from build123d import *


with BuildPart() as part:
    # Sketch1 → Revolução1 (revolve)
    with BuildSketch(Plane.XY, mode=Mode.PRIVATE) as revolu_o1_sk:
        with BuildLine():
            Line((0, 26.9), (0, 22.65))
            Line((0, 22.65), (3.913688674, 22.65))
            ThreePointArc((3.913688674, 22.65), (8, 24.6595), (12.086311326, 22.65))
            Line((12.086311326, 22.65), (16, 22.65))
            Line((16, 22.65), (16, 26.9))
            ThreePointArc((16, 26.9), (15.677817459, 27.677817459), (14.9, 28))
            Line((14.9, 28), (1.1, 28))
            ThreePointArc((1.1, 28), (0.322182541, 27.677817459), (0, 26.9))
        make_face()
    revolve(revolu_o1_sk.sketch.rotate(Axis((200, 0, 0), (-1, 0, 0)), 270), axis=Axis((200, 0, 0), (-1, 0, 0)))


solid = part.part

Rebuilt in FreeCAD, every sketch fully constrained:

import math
import FreeCAD as App
import Part
import Sketcher

V = App.Vector
Q = App.Units.Quantity

doc = App.newDocument("Part")
body = doc.addObject("PartDesign::Body", "Body")

# Sketch on XY plane
sketch1 = body.newObject("Sketcher::SketchObject", "Sketch")
sketch1.AttachmentSupport = (doc.getObject("XY_Plane"), [""])
sketch1.MapMode = "FlatFace"
sketch1.addGeometry([
    Part.LineSegment(V(0, 26.9, 0), V(0, 22.6, 0)),  # 0
    Part.LineSegment(V(0, 22.6, 0), V(3.9, 22.6, 0)),  # 1
    Part.ArcOfCircle(Part.Circle(V(8, 19.5, 0), V(0, 0, 1), 5.2), math.radians(38), math.radians(142)),  # 2
    Part.LineSegment(V(12.1, 22.6, 0), V(16, 22.6, 0)),  # 3
    Part.LineSegment(V(16, 22.6, 0), V(16, 26.9, 0)),  # 4
    Part.ArcOfCircle(Part.Circle(V(14.9, 26.9, 0), V(0, 0, 1), 1.1), math.radians(0), math.radians(90)),  # 5
    Part.LineSegment(V(14.9, 28, 0), V(1.1, 28, 0)),  # 6
    Part.ArcOfCircle(Part.Circle(V(1.1, 26.9, 0), V(0, 0, 1), 1.1), math.radians(90), math.radians(180)),  # 7
], False)
sketch1.addConstraint([
    Sketcher.Constraint("Coincident", 0, 2, 1, 1),
    Sketcher.Constraint("Coincident", 1, 2, 2, 2),
    Sketcher.Constraint("Coincident", 2, 1, 3, 1),
    Sketcher.Constraint("Coincident", 3, 2, 4, 1),
    Sketcher.Constraint("Tangent", 4, 2, 5, 1),
    Sketcher.Constraint("Tangent", 5, 2, 6, 1),
    Sketcher.Constraint("Tangent", 6, 2, 7, 1),
    Sketcher.Constraint("Tangent", 7, 2, 0, 1),
    Sketcher.Constraint("Vertical", 0),
    Sketcher.Constraint("Horizontal", 1),
    Sketcher.Constraint("Horizontal", 3),
    Sketcher.Constraint("Vertical", 4),
    Sketcher.Constraint("Horizontal", 6),
    Sketcher.Constraint("Equal", 5, 7),
    Sketcher.Constraint("PointOnObject", 0, 2, -2),
    Sketcher.Constraint("Horizontal", 1, 2, 2, 1),
    Sketcher.Constraint("Equal", 1, 3),
    Sketcher.Constraint("Radius", 5, Q("1.1 mm")),
    Sketcher.Constraint("DistanceX", 6, 2, 6, 1, Q("13.8 mm")),
    Sketcher.Constraint("DistanceY", -1, 1, 5, 2, Q("28 mm")),
    Sketcher.Constraint("DistanceY", 0, 2, 0, 1, Q("4.25 mm")),
    Sketcher.Constraint("DistanceY", -1, 1, 2, 3, Q("19.5 mm")),
    Sketcher.Constraint("Radius", 2, Q("5.1595 mm")),
])
revolution = body.newObject("PartDesign::Revolution", "Revolution")
revolution.Profile = sketch1
revolution.ReferenceAxis = (sketch1, ["H_Axis"])
revolution.Angle = 360

doc.recompute()
